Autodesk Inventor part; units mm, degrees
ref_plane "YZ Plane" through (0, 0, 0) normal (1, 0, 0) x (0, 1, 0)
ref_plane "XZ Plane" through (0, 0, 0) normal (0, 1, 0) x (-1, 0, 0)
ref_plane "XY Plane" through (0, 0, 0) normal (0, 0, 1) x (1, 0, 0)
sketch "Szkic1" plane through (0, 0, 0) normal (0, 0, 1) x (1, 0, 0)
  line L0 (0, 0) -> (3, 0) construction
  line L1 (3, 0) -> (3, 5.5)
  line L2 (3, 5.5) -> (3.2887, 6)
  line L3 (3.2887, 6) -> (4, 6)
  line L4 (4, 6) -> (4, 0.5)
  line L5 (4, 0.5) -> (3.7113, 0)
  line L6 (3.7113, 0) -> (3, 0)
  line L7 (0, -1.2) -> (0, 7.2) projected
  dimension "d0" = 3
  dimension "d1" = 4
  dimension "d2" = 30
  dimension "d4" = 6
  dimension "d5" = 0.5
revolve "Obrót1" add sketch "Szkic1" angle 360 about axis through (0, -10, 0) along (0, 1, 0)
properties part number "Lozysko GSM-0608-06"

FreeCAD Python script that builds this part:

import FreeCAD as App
import Part
import Sketcher

V = App.Vector
Q = App.Units.Quantity


def add_polygon(sketch, points):
    """Adds a closed chain of lines whose ends are joined by coincident constraints."""
    first, n = sketch.GeometryCount, len(points)
    for a, b in zip(points, points[1:] + points[:1]):
        sketch.addGeometry(Part.LineSegment(App.Vector(*a, 0), App.Vector(*b, 0)), False)
    for i in range(n):
        sketch.addConstraint(Sketcher.Constraint("Coincident", first + i, 2, first + (i + 1) % n, 1))

doc = App.newDocument("Part")
body = doc.addObject("PartDesign::Body", "Body")

sketch1 = body.newObject("Sketcher::SketchObject", "Sketch")
sketch1.AttachmentSupport = (doc.getObject("XY_Plane"), [""])
sketch1.MapMode = "FlatFace"
add_polygon(sketch1, [(3, 5.5), (3, 0), (3.7, 0), (4, 0.5), (4, 6), (3.3, 6)])
sketch1.addConstraint(Sketcher.Constraint("Vertical", 0))
sketch1.addConstraint(Sketcher.Constraint("Horizontal", 1))
sketch1.addConstraint(Sketcher.Constraint("Vertical", 3))
sketch1.addConstraint(Sketcher.Constraint("Horizontal", 4))
sketch1.addConstraint(Sketcher.Constraint("PointOnObject", 0, 2, -1))
sketch1.addConstraint(Sketcher.Constraint("Parallel", 2, 5))
sketch1.addConstraint(Sketcher.Constraint("Equal", 1, 4))
sketch1.addConstraint(Sketcher.Constraint("DistanceX", -1, 1, 0, 2, Q("3 mm")))
sketch1.addConstraint(Sketcher.Constraint("DistanceX", -1, 1, 2, 2, Q("4 mm")))
sketch1.addConstraint(Sketcher.Constraint("DistanceY", -1, 1, 3, 2, Q("6 mm")))
sketch1.addConstraint(Sketcher.Constraint("DistanceY", -1, 1, 2, 2, Q("0.5 mm")))
sketch1.addConstraint(Sketcher.Constraint("DistanceX", 1, 1, 1, 2, Q("0.7113 mm")))
revolution = body.newObject("PartDesign::Revolution", "Revolution")
revolution.Profile = sketch1
revolution.ReferenceAxis = (sketch1, ["V_Axis"])
revolution.Angle = 360

doc.recompute()
